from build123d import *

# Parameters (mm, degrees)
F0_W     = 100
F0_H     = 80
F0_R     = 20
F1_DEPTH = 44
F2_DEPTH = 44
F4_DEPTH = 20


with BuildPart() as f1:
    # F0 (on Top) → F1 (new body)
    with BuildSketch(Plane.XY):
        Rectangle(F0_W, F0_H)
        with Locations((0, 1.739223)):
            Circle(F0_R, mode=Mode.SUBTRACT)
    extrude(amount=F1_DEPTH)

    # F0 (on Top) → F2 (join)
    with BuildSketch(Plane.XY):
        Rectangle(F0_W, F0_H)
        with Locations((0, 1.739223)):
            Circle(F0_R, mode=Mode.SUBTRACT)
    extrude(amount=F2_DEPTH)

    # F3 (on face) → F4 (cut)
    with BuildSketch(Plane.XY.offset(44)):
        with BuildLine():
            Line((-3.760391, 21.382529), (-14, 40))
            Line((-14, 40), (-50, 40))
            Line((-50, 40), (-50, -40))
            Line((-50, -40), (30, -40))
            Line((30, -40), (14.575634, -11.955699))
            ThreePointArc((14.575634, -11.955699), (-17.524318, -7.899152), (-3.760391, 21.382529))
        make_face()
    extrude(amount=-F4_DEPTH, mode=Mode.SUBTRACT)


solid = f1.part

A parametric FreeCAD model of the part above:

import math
import FreeCAD as App
import Part
import Sketcher

V = App.Vector
Q = App.Units.Quantity


def add_polygon(sketch, points):
    """Adds a closed chain of lines whose ends are joined by coincident constraints."""
    first, n = sketch.GeometryCount, len(points)
    for a, b in zip(points, points[1:] + points[:1]):
        sketch.addGeometry(Part.LineSegment(App.Vector(*a, 0), App.Vector(*b, 0)), False)
    for i in range(n):
        sketch.addConstraint(Sketcher.Constraint("Coincident", first + i, 2, first + (i + 1) % n, 1))

doc = App.newDocument("Part")
body = doc.addObject("PartDesign::Body", "Body")

# Sketch on XY plane
sketch1 = body.newObject("Sketcher::SketchObject", "Sketch")
sketch1.AttachmentSupport = (doc.getObject("XY_Plane"), [""])
sketch1.MapMode = "FlatFace"
add_polygon(sketch1, [(-50, 40), (-50, -40), (50, -40), (50, 40)])  # lines 0-3
sketch1.addGeometry(Part.Circle(V(0, 1.739223, 0), V(0, 0, 1), 20), False)  # 4
sketch1.addConstraint(Sketcher.Constraint("Vertical", 0))
sketch1.addConstraint(Sketcher.Constraint("Horizontal", 1))
sketch1.addConstraint(Sketcher.Constraint("Vertical", 2))
sketch1.addConstraint(Sketcher.Constraint("Horizontal", 3))
sketch1.addConstraint(Sketcher.Constraint("Symmetric", 0, 2, 2, 2, -1, 1))
sketch1.addConstraint(Sketcher.Constraint("PointOnObject", 4, 3, -2))
sketch1.addConstraint(Sketcher.Constraint("Diameter", 4, Q("40 mm")))
sketch1.addConstraint(Sketcher.Constraint("DistanceX", 1, 1, 1, 2, Q("100 mm")))
sketch1.addConstraint(Sketcher.Constraint("DistanceY", 0, 2, 0, 1, Q("80 mm")))
sketch1.addConstraint(Sketcher.Constraint("DistanceY", -1, 1, 4, 3, Q("1.739223 mm")))
pad1 = body.newObject("PartDesign::Pad", "Pad")
pad1.Profile = sketch1
pad1.Length = 44

# Sketch on XY plane
sketch2 = body.newObject("Sketcher::SketchObject", "Sketch001")
sketch2.AttachmentSupport = (doc.getObject("XY_Plane"), [""])
sketch2.MapMode = "FlatFace"
add_polygon(sketch2, [(-50, 40), (-50, -40), (50, -40), (50, 40)])  # lines 0-3
sketch2.addGeometry(Part.Circle(V(0, 1.739223, 0), V(0, 0, 1), 20), False)  # 4
sketch2.addConstraint(Sketcher.Constraint("Vertical", 0))
sketch2.addConstraint(Sketcher.Constraint("Horizontal", 1))
sketch2.addConstraint(Sketcher.Constraint("Vertical", 2))
sketch2.addConstraint(Sketcher.Constraint("Horizontal", 3))
sketch2.addConstraint(Sketcher.Constraint("Symmetric", 0, 2, 2, 2, -1, 1))
sketch2.addConstraint(Sketcher.Constraint("PointOnObject", 4, 3, -2))
sketch2.addConstraint(Sketcher.Constraint("Diameter", 4, Q("40 mm")))
sketch2.addConstraint(Sketcher.Constraint("DistanceX", 1, 1, 1, 2, Q("100 mm")))
sketch2.addConstraint(Sketcher.Constraint("DistanceY", 0, 2, 0, 1, Q("80 mm")))
sketch2.addConstraint(Sketcher.Constraint("DistanceY", -1, 1, 4, 3, Q("1.739223 mm")))
pad2 = body.newObject("PartDesign::Pad", "Pad001")
pad2.Profile = sketch2
pad2.Length = 44

# Sketch on XY plane
sketch3 = body.newObject("Sketcher::SketchObject", "Sketch002")
sketch3.AttachmentSupport = (doc.getObject("XY_Plane"), [""])
sketch3.MapMode = "FlatFace"
sketch3.AttachmentOffset = App.Placement(V(0, 0, 44), App.Rotation())
sketch3.addGeometry(Part.LineSegment(V(-3.760391, 21.382529, 0), V(-14, 40, 0)), False)
sketch3.addGeometry(Part.LineSegment(V(-14, 40, 0), V(-50, 40, 0)), False)
sketch3.addGeometry(Part.LineSegment(V(-50, 40, 0), V(-50, -40, 0)), False)
sketch3.addGeometry(Part.LineSegment(V(-50, -40, 0), V(30, -40, 0)), False)
sketch3.addGeometry(Part.LineSegment(V(30, -40, 0), V(14.575634, -11.955699, 0)), False)
sketch3.addGeometry(Part.ArcOfCircle(Part.Circle(V(0, 1.739223, 0), V(0, 0, 1), 20), math.radians(100.83723), math.radians(316.784356)), False)
sketch3.addConstraint(Sketcher.Constraint("Coincident", 0, 2, 1, 1))
sketch3.addConstraint(Sketcher.Constraint("Coincident", 1, 2, 2, 1))
sketch3.addConstraint(Sketcher.Constraint("Coincident", 2, 2, 3, 1))
sketch3.addConstraint(Sketcher.Constraint("Coincident", 3, 2, 4, 1))
sketch3.addConstraint(Sketcher.Constraint("Coincident", 4, 2, 5, 2))
sketch3.addConstraint(Sketcher.Constraint("Coincident", 5, 1, 0, 1))
sketch3.addConstraint(Sketcher.Constraint("Horizontal", 1))
sketch3.addConstraint(Sketcher.Constraint("Vertical", 2))
sketch3.addConstraint(Sketcher.Constraint("Horizontal", 3))
sketch3.addConstraint(Sketcher.Constraint("PointOnObject", 5, 3, -2))
sketch3.addConstraint(Sketcher.Constraint("Parallel", 0, 4))
sketch3.addConstraint(Sketcher.Constraint("Equal", 3, 2))
sketch3.addConstraint(Sketcher.Constraint("Radius", 5, Q("20 mm")))
sketch3.addConstraint(Sketcher.Constraint("DistanceX", 1, 2, 1, 1, Q("36 mm")))
sketch3.addConstraint(Sketcher.Constraint("DistanceX", 3, 1, 3, 2, Q("80 mm")))
sketch3.addConstraint(Sketcher.Constraint("DistanceX", 0, 2, -1, 1, Q("14 mm")))
sketch3.addConstraint(Sketcher.Constraint("DistanceY", -1, 1, 0, 2, Q("40 mm")))
sketch3.addConstraint(Sketcher.Constraint("DistanceY", 4, 2, -1, 1, Q("11.955699 mm")))
sketch3.addConstraint(Sketcher.Constraint("DistanceY", -1, 1, 5, 1, Q("21.382529 mm")))
pocket1 = body.newObject("PartDesign::Pocket", "Pocket")
pocket1.Profile = sketch3
pocket1.Length = 20

doc.recompute()
